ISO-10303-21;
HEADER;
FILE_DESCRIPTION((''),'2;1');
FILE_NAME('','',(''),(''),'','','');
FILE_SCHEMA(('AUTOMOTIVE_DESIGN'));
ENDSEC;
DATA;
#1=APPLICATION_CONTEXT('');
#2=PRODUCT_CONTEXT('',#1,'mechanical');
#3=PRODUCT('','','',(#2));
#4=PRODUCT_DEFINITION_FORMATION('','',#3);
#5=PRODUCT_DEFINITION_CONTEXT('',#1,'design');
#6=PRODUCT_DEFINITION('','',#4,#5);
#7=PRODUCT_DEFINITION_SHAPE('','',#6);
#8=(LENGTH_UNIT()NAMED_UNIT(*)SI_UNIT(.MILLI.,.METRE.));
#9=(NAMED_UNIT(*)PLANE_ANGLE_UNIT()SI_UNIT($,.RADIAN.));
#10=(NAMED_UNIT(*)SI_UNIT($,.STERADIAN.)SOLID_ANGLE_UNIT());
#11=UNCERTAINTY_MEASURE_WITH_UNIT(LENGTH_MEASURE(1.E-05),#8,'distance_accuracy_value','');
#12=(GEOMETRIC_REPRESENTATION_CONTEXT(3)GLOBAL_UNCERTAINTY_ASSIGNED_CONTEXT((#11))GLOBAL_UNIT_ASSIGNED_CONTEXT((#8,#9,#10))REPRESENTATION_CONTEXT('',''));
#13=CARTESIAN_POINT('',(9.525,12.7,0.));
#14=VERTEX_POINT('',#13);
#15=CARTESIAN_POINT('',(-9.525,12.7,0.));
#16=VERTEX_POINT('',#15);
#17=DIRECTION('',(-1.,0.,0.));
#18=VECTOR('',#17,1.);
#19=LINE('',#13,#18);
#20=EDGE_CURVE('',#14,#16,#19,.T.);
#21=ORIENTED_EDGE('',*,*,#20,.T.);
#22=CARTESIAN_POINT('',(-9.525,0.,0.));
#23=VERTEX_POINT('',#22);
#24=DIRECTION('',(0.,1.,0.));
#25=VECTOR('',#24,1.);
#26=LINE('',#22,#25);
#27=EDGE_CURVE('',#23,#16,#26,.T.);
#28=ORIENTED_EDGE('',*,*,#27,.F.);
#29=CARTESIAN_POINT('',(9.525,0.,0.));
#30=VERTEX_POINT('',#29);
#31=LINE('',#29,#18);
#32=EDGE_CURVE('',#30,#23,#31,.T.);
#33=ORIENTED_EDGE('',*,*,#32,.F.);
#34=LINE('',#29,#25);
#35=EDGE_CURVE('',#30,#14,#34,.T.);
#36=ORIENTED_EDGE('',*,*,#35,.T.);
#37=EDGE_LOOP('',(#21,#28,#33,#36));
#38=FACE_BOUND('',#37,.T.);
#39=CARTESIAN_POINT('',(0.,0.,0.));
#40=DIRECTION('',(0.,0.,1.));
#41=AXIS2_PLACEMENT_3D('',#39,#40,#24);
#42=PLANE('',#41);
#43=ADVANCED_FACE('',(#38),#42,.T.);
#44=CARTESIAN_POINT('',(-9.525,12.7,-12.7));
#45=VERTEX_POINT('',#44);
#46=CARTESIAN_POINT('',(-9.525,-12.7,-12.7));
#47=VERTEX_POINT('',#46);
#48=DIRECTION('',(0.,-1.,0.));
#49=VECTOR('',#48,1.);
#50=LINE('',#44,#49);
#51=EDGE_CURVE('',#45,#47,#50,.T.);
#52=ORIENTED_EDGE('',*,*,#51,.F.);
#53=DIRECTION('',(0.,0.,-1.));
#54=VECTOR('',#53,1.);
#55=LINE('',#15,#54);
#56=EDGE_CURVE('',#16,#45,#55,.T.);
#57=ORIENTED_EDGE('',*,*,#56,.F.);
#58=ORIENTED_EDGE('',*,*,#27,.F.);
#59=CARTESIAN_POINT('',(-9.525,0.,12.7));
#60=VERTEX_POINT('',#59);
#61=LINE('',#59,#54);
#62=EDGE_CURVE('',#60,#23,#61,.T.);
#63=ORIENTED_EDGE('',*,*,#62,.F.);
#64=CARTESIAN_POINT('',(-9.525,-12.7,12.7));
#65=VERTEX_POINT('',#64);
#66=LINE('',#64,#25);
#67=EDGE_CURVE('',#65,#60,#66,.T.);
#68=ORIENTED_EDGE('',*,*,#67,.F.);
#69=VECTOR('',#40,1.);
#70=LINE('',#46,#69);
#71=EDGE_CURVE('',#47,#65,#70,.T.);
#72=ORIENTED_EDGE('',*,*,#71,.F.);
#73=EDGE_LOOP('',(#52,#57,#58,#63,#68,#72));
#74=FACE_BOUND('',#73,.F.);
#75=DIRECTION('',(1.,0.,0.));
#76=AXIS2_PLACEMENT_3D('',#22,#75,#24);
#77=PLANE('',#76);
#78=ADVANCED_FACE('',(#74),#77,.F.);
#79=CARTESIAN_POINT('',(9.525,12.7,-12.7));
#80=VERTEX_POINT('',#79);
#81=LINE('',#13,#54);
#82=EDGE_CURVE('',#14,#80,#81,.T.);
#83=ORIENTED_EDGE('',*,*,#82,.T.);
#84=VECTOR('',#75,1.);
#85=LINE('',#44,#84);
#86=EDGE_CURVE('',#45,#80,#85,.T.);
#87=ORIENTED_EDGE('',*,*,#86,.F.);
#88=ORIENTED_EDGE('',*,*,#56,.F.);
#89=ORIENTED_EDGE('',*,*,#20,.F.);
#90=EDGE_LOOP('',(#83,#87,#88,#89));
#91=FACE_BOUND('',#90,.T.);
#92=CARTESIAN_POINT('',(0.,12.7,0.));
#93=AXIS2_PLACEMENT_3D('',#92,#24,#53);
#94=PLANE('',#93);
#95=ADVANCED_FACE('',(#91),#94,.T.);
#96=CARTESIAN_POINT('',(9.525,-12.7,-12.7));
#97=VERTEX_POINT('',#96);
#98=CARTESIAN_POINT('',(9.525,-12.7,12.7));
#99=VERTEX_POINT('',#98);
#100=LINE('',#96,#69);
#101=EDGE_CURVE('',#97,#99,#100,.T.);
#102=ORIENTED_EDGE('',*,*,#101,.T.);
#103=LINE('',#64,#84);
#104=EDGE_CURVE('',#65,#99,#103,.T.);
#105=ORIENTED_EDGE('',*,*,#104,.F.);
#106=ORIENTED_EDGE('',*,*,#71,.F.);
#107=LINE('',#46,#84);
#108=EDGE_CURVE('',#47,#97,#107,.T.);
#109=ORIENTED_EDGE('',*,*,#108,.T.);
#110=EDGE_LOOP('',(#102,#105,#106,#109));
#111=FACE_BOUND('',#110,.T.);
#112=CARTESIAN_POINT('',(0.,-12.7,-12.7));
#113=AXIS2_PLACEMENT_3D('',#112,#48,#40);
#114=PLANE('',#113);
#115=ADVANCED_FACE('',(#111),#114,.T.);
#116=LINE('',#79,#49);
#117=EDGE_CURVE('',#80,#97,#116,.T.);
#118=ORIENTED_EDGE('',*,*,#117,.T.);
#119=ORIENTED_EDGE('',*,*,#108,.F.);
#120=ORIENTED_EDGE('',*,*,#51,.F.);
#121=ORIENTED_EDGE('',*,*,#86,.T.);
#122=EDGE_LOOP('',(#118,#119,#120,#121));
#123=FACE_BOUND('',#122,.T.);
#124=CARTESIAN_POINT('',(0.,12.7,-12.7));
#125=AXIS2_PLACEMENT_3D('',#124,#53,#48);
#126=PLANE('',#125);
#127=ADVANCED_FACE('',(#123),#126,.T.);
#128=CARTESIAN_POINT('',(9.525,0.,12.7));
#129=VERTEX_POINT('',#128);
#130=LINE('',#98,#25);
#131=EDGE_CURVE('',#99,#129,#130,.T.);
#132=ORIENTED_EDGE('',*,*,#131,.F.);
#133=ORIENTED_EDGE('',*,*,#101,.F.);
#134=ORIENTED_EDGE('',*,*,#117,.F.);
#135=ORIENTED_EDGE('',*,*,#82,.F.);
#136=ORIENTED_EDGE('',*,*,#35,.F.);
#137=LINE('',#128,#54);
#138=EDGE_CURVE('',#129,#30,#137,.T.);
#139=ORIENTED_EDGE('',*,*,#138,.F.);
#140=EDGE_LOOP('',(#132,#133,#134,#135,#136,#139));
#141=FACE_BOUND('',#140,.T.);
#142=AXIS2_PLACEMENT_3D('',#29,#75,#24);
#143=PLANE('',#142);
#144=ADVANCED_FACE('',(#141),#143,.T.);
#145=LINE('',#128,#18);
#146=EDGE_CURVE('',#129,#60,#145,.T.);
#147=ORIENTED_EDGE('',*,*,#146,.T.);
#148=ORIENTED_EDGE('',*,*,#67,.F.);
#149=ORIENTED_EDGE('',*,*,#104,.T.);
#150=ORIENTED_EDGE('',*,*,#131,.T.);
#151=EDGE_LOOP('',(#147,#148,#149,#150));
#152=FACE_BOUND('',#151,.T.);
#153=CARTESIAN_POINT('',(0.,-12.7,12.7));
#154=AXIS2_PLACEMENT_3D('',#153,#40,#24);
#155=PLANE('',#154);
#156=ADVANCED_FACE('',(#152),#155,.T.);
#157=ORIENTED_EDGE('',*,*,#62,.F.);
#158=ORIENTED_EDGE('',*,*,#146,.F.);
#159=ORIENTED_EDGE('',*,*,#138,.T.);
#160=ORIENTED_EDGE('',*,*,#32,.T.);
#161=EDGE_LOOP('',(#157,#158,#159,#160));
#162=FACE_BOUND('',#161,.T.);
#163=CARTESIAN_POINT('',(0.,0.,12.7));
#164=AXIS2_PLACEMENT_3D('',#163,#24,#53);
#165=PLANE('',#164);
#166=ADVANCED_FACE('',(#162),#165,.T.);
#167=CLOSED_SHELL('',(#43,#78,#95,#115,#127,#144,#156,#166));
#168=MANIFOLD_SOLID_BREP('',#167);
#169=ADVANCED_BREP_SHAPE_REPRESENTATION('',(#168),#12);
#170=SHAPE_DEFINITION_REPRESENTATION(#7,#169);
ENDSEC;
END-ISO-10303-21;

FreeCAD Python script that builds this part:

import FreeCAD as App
import Part
import Sketcher
from FreeCAD import Vector
Q = App.Units.Quantity

doc = App.newDocument("Part")
body = doc.addObject("PartDesign::Body", "Body")

# Sketch on YZ plane
sketch1 = body.newObject("Sketcher::SketchObject", "Sketch")
sketch1.AttachmentSupport = (doc.getObject("YZ_Plane"), [""])
sketch1.MapMode = "FlatFace"
sketch1.addGeometry(Part.LineSegment(Vector(0, 13, 0), Vector(-13, 13, 0)), False)
sketch1.addGeometry(Part.LineSegment(Vector(-13, 13, 0), Vector(-13, -13, 0)), False)
sketch1.addGeometry(Part.LineSegment(Vector(-13, -13, 0), Vector(13, -13, 0)), False)
sketch1.addGeometry(Part.LineSegment(Vector(13, -13, 0), Vector(13, 0, 0)), False)
sketch1.addGeometry(Part.LineSegment(Vector(13, 0, 0), Vector(0, 0, 0)), False)
sketch1.addGeometry(Part.LineSegment(Vector(0, 0, 0), Vector(0, 13, 0)), False)
sketch1.addConstraint(Sketcher.Constraint("Coincident", 0, 2, 1, 1))
sketch1.addConstraint(Sketcher.Constraint("Coincident", 1, 2, 2, 1))
sketch1.addConstraint(Sketcher.Constraint("Coincident", 2, 2, 3, 1))
sketch1.addConstraint(Sketcher.Constraint("Coincident", 3, 2, 4, 1))
sketch1.addConstraint(Sketcher.Constraint("Coincident", 4, 2, 5, 1))
sketch1.addConstraint(Sketcher.Constraint("Coincident", 5, 2, 0, 1))
sketch1.addConstraint(Sketcher.Constraint("Horizontal", 0))
sketch1.addConstraint(Sketcher.Constraint("Vertical", 1))
sketch1.addConstraint(Sketcher.Constraint("Horizontal", 2))
sketch1.addConstraint(Sketcher.Constraint("Vertical", 3))
sketch1.addConstraint(Sketcher.Constraint("Horizontal", 4))
sketch1.addConstraint(Sketcher.Constraint("Vertical", 5))
sketch1.addConstraint(Sketcher.Constraint("Coincident", 4, 2, -1, 1))
sketch1.addConstraint(Sketcher.Constraint("Symmetric", 0, 2, 2, 2, -1, 1))
sketch1.addConstraint(Sketcher.Constraint("Equal", 2, 1))
sketch1.addConstraint(Sketcher.Constraint("DistanceX", 2, 1, 2, 2, Q("1 in")))
pad1 = body.newObject("PartDesign::Pad", "Pad")
pad1.Profile = sketch1
pad1.Length = Q("0.75 in")
pad1.Midplane = True

doc.recompute()
